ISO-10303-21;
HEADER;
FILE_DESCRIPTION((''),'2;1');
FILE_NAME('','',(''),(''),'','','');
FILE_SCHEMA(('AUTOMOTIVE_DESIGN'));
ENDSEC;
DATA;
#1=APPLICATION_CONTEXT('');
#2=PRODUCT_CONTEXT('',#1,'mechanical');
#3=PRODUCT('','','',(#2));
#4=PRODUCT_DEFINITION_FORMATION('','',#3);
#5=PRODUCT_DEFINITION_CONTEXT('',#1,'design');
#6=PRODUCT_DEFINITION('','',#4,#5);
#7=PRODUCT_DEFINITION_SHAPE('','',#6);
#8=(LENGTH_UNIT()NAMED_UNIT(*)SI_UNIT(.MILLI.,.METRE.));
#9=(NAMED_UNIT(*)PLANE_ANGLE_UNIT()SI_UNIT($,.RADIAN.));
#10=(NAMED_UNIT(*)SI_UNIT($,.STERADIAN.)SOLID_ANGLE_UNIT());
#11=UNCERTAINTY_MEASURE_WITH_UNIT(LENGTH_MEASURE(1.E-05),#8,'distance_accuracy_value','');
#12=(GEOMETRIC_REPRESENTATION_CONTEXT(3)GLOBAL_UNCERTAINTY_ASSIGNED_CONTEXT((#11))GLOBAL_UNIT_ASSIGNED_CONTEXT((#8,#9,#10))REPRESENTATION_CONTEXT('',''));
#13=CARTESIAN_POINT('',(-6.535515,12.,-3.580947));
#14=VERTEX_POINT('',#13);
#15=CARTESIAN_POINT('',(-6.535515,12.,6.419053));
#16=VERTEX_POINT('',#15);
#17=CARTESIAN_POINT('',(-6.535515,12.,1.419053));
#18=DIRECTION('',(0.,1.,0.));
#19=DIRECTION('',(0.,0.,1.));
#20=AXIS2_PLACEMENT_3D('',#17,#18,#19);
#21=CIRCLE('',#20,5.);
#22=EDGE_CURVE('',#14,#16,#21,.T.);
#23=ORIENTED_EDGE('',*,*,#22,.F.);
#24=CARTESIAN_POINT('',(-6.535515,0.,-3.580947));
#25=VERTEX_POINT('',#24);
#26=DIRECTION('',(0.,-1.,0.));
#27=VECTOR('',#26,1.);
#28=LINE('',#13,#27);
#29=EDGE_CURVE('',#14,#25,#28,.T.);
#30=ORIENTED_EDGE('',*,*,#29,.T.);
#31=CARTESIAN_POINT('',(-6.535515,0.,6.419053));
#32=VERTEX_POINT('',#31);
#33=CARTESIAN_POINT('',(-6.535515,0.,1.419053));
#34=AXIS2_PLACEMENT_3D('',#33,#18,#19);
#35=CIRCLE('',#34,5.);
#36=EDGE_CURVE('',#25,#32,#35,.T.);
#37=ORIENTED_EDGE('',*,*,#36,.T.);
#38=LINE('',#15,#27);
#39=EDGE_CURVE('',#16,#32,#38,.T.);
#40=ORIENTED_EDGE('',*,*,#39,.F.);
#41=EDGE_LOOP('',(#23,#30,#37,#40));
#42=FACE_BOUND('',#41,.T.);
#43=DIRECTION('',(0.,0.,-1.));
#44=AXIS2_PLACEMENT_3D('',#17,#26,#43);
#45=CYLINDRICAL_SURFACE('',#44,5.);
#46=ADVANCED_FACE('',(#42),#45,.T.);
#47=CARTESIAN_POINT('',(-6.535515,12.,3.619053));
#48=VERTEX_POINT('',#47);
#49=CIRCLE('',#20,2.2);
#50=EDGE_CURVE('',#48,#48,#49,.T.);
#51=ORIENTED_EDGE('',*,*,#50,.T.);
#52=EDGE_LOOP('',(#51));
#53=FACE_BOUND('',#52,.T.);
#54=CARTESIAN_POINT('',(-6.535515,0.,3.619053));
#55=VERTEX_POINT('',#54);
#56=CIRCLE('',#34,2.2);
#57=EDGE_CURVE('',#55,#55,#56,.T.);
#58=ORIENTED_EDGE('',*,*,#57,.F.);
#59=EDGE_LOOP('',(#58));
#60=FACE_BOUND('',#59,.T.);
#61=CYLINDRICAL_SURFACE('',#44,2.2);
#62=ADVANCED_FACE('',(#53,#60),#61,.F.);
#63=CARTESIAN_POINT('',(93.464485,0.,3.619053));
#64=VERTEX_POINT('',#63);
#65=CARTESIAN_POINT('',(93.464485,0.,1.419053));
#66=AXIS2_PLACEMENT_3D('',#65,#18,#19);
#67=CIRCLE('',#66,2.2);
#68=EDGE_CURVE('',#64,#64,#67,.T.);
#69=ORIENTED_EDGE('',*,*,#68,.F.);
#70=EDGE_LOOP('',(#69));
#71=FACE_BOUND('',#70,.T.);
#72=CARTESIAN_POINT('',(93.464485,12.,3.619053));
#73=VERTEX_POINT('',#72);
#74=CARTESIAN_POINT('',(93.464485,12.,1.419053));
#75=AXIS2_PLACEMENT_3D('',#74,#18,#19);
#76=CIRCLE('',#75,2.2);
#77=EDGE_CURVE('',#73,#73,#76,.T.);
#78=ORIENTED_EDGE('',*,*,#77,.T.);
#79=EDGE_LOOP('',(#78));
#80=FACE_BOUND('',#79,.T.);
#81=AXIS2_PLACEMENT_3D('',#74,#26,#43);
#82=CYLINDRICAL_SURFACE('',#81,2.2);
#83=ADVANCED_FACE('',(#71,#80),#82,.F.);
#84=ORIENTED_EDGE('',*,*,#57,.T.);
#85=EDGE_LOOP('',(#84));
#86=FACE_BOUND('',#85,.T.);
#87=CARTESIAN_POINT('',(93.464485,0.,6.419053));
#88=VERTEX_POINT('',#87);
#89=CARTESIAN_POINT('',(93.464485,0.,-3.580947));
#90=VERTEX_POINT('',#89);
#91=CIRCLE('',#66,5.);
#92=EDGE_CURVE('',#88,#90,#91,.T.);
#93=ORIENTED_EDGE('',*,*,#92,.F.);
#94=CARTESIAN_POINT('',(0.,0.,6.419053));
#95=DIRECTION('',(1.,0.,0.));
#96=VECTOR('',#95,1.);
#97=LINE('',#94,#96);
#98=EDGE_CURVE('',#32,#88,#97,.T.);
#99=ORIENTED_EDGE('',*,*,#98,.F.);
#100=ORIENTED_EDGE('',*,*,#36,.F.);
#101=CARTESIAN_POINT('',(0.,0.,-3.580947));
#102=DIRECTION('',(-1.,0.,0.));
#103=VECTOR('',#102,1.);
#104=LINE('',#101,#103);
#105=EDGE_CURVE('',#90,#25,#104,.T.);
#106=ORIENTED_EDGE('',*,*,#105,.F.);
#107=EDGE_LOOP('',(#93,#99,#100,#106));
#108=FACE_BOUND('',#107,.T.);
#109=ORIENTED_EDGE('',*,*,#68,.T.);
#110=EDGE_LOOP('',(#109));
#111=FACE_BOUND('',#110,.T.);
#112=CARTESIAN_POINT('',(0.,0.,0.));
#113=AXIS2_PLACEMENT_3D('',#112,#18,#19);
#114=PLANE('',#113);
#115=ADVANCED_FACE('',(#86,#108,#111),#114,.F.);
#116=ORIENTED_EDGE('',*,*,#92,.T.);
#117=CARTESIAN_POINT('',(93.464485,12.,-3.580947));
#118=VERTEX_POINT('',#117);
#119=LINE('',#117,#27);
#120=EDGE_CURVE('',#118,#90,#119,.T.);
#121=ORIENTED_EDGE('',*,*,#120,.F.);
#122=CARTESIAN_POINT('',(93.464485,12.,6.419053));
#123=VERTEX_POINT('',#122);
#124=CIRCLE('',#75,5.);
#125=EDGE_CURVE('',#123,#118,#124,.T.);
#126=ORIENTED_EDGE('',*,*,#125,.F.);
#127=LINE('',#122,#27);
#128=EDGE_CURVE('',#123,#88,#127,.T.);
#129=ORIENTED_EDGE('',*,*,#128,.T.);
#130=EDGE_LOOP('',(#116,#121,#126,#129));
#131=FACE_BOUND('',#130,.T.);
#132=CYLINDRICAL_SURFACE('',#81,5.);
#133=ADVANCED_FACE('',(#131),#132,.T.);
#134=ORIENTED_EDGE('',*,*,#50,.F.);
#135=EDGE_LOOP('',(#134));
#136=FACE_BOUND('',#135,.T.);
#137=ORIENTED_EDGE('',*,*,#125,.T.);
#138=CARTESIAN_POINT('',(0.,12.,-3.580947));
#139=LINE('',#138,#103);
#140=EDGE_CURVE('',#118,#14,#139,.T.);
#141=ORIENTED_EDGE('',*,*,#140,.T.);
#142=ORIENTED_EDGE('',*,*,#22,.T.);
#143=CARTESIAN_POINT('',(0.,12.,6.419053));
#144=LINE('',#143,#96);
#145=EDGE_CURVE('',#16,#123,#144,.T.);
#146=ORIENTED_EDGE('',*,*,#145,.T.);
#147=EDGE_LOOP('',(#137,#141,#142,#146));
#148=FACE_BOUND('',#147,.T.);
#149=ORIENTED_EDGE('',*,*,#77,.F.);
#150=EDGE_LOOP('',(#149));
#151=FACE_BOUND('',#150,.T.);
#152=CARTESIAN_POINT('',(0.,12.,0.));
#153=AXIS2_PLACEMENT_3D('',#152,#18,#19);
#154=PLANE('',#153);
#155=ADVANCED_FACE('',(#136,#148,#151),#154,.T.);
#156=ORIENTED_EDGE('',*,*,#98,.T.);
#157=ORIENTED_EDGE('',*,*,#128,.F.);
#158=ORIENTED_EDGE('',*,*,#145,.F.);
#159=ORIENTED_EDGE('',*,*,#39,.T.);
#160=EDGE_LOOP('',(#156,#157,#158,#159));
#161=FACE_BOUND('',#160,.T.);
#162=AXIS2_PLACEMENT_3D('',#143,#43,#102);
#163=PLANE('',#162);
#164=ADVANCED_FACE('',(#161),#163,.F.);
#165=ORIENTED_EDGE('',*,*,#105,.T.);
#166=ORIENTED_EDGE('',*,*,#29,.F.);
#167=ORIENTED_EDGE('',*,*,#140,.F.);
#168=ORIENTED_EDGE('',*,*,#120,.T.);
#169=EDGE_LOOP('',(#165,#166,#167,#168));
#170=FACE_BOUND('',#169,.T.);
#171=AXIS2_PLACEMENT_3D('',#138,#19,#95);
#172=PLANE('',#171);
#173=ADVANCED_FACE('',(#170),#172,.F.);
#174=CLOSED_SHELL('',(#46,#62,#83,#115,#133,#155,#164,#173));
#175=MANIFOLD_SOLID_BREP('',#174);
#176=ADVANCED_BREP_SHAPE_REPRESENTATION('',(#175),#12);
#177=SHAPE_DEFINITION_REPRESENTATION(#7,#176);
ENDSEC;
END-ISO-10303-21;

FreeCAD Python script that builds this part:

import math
import FreeCAD as App
import Part
import Sketcher
from FreeCAD import Vector
Q = App.Units.Quantity

doc = App.newDocument("Part")
params = doc.addObject("Spreadsheet::Sheet", "Params")
for row, (alias, value) in enumerate([
    ("sketch1_radius", "5 mm"),
    ("sketch1_diameter", "4.4 mm"),
    ("sketch1_width", "100 mm"),
    ("pad1_length", "12 mm"),
], start=1):
    params.set(f"A{row}", alias)
    params.set(f"B{row}", "=" + value)
    params.setAlias(f"B{row}", alias)

body = doc.addObject("PartDesign::Body", "Body")

# Sketch on XZ plane
sketch1 = doc.addObject("Sketcher::SketchObject", "Sketch")
body.addObject(sketch1)
sketch1.AttachmentSupport = (doc.XZ_Plane, [""])
sketch1.MapMode = "FlatFace"
sketch1.addGeometry(Part.ArcOfCircle(Part.Circle(Vector(-6.535515, 1.419053, 0), Vector(0, 0, 1), 5), math.radians(90), math.radians(270)), False)
sketch1.addGeometry(Part.LineSegment(Vector(-6.535515, 6.419053, 0), Vector(93.464485, 6.419053, 0)), False)
sketch1.addGeometry(Part.ArcOfCircle(Part.Circle(Vector(93.464485, 1.419053, 0), Vector(0, 0, 1), 5), math.radians(-90), math.radians(90)), False)
sketch1.addGeometry(Part.LineSegment(Vector(93.464485, -3.580947, 0), Vector(-6.535515, -3.580947, 0)), False)
sketch1.addGeometry(Part.Circle(Vector(-6.535515, 1.419053, 0), Vector(0, 0, 1), 2.2), False)
sketch1.addGeometry(Part.Circle(Vector(93.464485, 1.419053, 0), Vector(0, 0, 1), 2.2), False)
sketch1.addConstraint(Sketcher.Constraint("Tangent", 0, 1, 1, 1))
sketch1.addConstraint(Sketcher.Constraint("Tangent", 1, 2, 2, 2))
sketch1.addConstraint(Sketcher.Constraint("Tangent", 2, 1, 3, 1))
sketch1.addConstraint(Sketcher.Constraint("Tangent", 3, 2, 0, 2))
sketch1.addConstraint(Sketcher.Constraint("Horizontal", 1))
sketch1.addConstraint(Sketcher.Constraint("Horizontal", 3))
sketch1.addConstraint(Sketcher.Constraint("Coincident", 4, 3, 0, 3))
sketch1.addConstraint(Sketcher.Constraint("Coincident", 5, 3, 2, 3))
sketch1.addConstraint(Sketcher.Constraint("Equal", 4, 5))
sketch1.addConstraint(Sketcher.Constraint("Radius", 0, Q("5 mm")))
sketch1.addConstraint(Sketcher.Constraint("Diameter", 4, Q("4.4 mm")))
sketch1.addConstraint(Sketcher.Constraint("DistanceX", 1, 1, 1, 2, Q("100 mm")))
sketch1.addConstraint(Sketcher.Constraint("DistanceX", 0, 3, -1, 1, Q("6.535515 mm")))
sketch1.addConstraint(Sketcher.Constraint("DistanceY", -1, 1, 0, 3, Q("1.419053 mm")))
sketch1.setExpression("Constraints[9]", "Params.sketch1_radius")
sketch1.setExpression("Constraints[10]", "Params.sketch1_diameter")
sketch1.setExpression("Constraints[11]", "Params.sketch1_width")
pad1 = doc.addObject("PartDesign::Pad", "Pad")
body.addObject(pad1)
pad1.Profile = sketch1
pad1.setExpression("Length", "Params.pad1_length")
pad1.Reversed = True

doc.recompute()
